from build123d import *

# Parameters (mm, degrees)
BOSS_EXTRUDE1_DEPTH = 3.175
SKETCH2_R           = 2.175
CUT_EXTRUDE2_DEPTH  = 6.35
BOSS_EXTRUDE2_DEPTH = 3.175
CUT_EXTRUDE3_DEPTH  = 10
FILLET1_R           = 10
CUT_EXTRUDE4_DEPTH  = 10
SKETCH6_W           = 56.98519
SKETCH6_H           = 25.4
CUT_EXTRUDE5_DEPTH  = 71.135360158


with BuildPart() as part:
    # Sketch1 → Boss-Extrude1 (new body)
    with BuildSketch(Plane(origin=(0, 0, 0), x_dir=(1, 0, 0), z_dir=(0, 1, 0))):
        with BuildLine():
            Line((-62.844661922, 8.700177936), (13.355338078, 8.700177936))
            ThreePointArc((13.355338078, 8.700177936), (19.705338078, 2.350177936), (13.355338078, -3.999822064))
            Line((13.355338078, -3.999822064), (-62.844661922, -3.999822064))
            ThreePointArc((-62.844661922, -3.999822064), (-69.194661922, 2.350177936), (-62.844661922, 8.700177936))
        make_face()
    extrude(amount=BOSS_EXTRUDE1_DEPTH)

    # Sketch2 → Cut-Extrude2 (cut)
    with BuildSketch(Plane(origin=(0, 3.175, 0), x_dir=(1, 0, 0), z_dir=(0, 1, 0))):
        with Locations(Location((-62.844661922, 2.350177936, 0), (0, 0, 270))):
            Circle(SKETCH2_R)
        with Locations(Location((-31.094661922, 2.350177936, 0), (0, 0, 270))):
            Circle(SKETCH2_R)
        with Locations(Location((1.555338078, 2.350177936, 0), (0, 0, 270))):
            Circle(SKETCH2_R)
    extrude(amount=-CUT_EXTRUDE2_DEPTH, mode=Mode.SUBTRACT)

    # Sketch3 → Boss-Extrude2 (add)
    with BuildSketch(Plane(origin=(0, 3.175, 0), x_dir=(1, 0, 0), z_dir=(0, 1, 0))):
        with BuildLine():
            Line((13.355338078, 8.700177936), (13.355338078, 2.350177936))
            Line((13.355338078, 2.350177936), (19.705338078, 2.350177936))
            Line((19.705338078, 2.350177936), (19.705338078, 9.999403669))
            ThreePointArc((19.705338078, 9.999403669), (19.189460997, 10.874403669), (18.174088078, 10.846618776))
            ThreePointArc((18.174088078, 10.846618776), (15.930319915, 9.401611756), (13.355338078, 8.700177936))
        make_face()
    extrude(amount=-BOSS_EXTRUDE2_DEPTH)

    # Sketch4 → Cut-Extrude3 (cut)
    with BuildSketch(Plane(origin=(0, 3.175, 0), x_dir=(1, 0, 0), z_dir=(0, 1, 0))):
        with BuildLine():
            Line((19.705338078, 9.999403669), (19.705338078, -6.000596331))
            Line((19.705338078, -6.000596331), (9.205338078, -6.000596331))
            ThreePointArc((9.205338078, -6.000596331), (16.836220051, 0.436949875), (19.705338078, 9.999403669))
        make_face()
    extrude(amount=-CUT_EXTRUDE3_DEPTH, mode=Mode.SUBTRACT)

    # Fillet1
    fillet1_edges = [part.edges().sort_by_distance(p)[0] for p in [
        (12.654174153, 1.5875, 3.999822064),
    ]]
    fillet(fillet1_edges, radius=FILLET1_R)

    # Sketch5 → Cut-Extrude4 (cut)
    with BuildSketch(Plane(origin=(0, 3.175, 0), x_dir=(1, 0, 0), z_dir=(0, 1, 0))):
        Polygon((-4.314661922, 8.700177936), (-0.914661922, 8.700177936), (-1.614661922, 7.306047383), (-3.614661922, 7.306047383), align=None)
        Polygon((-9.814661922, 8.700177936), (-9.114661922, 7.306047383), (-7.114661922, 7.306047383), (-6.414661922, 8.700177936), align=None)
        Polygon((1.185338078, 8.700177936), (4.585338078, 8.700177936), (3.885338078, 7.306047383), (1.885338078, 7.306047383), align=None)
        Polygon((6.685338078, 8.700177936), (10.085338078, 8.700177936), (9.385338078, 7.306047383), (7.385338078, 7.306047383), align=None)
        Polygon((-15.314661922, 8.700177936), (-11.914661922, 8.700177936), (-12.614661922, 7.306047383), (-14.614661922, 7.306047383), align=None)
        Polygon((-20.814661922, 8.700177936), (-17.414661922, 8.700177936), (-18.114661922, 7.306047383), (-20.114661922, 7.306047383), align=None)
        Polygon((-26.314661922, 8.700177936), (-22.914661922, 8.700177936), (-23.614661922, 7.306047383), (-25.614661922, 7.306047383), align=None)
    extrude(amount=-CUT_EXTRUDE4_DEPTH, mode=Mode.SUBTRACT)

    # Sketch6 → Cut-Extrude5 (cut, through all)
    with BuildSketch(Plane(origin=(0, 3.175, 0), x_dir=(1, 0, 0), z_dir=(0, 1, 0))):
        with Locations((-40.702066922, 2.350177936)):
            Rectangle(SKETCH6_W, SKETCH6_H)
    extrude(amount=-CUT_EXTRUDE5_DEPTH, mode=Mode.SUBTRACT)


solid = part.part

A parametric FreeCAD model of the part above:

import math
import FreeCAD as App
import Part
import Sketcher
from FreeCAD import Vector
Q = App.Units.Quantity


def edges_at(feature, points):
    """Names of the edges that pass closest to the given points."""
    edges = feature.Shape.Edges
    near = lambda p: min(range(len(edges)), key=lambda i: edges[i].distToShape(Part.Vertex(*p))[0])
    return sorted({f"Edge{near(p) + 1}" for p in points})

doc = App.newDocument("Part")
body = doc.addObject("PartDesign::Body", "Body")

sketch1 = body.newObject("Sketcher::SketchObject", "Sketch")
sketch1.AttachmentSupport = (doc.getObject("XZ_Plane"), [""])
sketch1.MapMode = "FlatFace"
sketch1.addGeometry([
    Part.LineSegment(Vector(13.355338, -8.700178, 0), Vector(-62.844662, -8.700178, 0)),
    Part.ArcOfCircle(Part.Circle(Vector(-62.844662, -2.350178, 0), Vector(0, 0, 1), 6.35), math.radians(90), math.radians(270)),
    Part.LineSegment(Vector(-62.844662, 3.999822, 0), Vector(13.355338, 3.999822, 0)),
    Part.ArcOfCircle(Part.Circle(Vector(13.355338, -2.350178, 0), Vector(0, 0, 1), 6.35), math.radians(-90), math.radians(90)),
], False)
sketch1.addConstraint([
    Sketcher.Constraint("Tangent", 0, 2, 1, 2),
    Sketcher.Constraint("Tangent", 1, 1, 2, 1),
    Sketcher.Constraint("Tangent", 2, 2, 3, 2),
    Sketcher.Constraint("Tangent", 3, 1, 0, 1),
    Sketcher.Constraint("Horizontal", 0),
    Sketcher.Constraint("Horizontal", 2),
    Sketcher.Constraint("Radius", 1, Q("6.35 mm")),
    Sketcher.Constraint("DistanceX", 0, 2, 0, 1, Q("76.2 mm")),
    Sketcher.Constraint("DistanceX", 1, 3, -1, 1, Q("62.844662 mm")),
    Sketcher.Constraint("DistanceY", 1, 3, -1, 1, Q("2.350178 mm")),
])
pad1 = body.newObject("PartDesign::Pad", "Pad")
pad1.Profile = sketch1
pad1.Length = 3.175
pad1.Reversed = True

sketch2 = body.newObject("Sketcher::SketchObject", "Sketch001")
sketch2.AttachmentSupport = (doc.getObject("XZ_Plane"), [""])
sketch2.MapMode = "FlatFace"
sketch2.AttachmentOffset = App.Placement(Vector(0, 0, -3.175), App.Rotation())
sketch2.addGeometry([
    Part.Circle(Vector(-62.844662, -2.350178, 0), Vector(0, 0, 1), 2.175),
    Part.Circle(Vector(-31.094662, -2.350178, 0), Vector(0, 0, 1), 2.175),
    Part.Circle(Vector(1.555338, -2.350178, 0), Vector(0, 0, 1), 2.175),
], False)
sketch2.addConstraint([
    Sketcher.Constraint("Equal", 0, 1),
    Sketcher.Constraint("Equal", 1, 2),
    Sketcher.Constraint("Horizontal", 0, 3, 1, 3),
    Sketcher.Constraint("Horizontal", 1, 3, 2, 3),
    Sketcher.Constraint("Diameter", 0, Q("4.35 mm")),
    Sketcher.Constraint("DistanceX", 0, 3, 2, 3, Q("64.4 mm")),
    Sketcher.Constraint("DistanceX", 0, 3, 1, 3, Q("31.75 mm")),
    Sketcher.Constraint("DistanceX", 0, 3, -1, 1, Q("62.844662 mm")),
    Sketcher.Constraint("DistanceY", 0, 3, -1, 1, Q("2.350178 mm")),
])
pocket1 = body.newObject("PartDesign::Pocket", "Pocket")
pocket1.Profile = sketch2
pocket1.Length = 6.35
pocket1.Reversed = True

sketch3 = body.newObject("Sketcher::SketchObject", "Sketch002")
sketch3.AttachmentSupport = (doc.getObject("XZ_Plane"), [""])
sketch3.MapMode = "FlatFace"
sketch3.AttachmentOffset = App.Placement(Vector(0, 0, -3.175), App.Rotation())
sketch3.addGeometry([
    Part.LineSegment(Vector(13.355338, -8.700178, 0), Vector(13.355338, -2.350178, 0)),
    Part.LineSegment(Vector(13.355338, -2.350178, 0), Vector(19.705338, -2.350178, 0)),
    Part.LineSegment(Vector(19.705338, -2.350178, 0), Vector(19.705338, -9.999404, 0)),
    Part.ArcOfCircle(Part.Circle(Vector(18.705338, -9.999404, 0), Vector(0, 0, 1), 1), math.radians(-122.089951), math.radians(0)),
    Part.ArcOfCircle(Part.Circle(Vector(12.369997, -17.394521, 0), Vector(0, 0, 1), 8.75), math.radians(48.44607), math.radians(83.534183)),
], False)
sketch3.addConstraint([
    Sketcher.Constraint("Coincident", 0, 2, 1, 1),
    Sketcher.Constraint("Coincident", 1, 2, 2, 1),
    Sketcher.Constraint("Tangent", 2, 2, 3, 2),
    Sketcher.Constraint("Coincident", 3, 1, 4, 1),
    Sketcher.Constraint("Coincident", 4, 2, 0, 1),
    Sketcher.Constraint("Vertical", 0),
    Sketcher.Constraint("Horizontal", 1),
    Sketcher.Constraint("Vertical", 2),
    Sketcher.Constraint("Equal", 1, 0),
    Sketcher.Constraint("Radius", 3, Q("1 mm")),
    Sketcher.Constraint("Radius", 4, Q("8.75 mm")),
    Sketcher.Constraint("DistanceX", 1, 1, 1, 2, Q("6.35 mm")),
    Sketcher.Constraint("DistanceY", 2, 2, 2, 1, Q("7.649226 mm")),
    Sketcher.Constraint("DistanceX", -1, 1, 3, 3, Q("18.705338 mm")),
    Sketcher.Constraint("DistanceY", 4, 3, -1, 1, Q("17.394521 mm")),
    Sketcher.Constraint("DistanceX", -1, 1, 3, 1, Q("18.174088 mm")),
])
pad2 = body.newObject("PartDesign::Pad", "Pad001")
pad2.Profile = sketch3
pad2.Length = 3.175

sketch4 = body.newObject("Sketcher::SketchObject", "Sketch003")
sketch4.AttachmentSupport = (doc.getObject("XZ_Plane"), [""])
sketch4.MapMode = "FlatFace"
sketch4.AttachmentOffset = App.Placement(Vector(0, 0, -3.175), App.Rotation())
sketch4.addGeometry([
    Part.LineSegment(Vector(19.705338, 6.000596, 0), Vector(19.705338, -9.999404, 0)),
    Part.ArcOfCircle(Part.Circle(Vector(2.205382, -10.038438, 0), Vector(0, 0, 1), 17.5), math.radians(0.127799), math.radians(66.421977)),
    Part.LineSegment(Vector(9.205338, 6.000596, 0), Vector(19.705338, 6.000596, 0)),
], False)
sketch4.addConstraint([
    Sketcher.Constraint("Coincident", 0, 2, 1, 1),
    Sketcher.Constraint("Coincident", 1, 2, 2, 1),
    Sketcher.Constraint("Coincident", 2, 2, 0, 1),
    Sketcher.Constraint("Vertical", 0),
    Sketcher.Constraint("Horizontal", 2),
    Sketcher.Constraint("Radius", 1, Q("17.5 mm")),
    Sketcher.Constraint("DistanceY", 0, 2, 0, 1, Q("16 mm")),
    Sketcher.Constraint("DistanceX", 2, 1, 2, 2, Q("10.5 mm")),
    Sketcher.Constraint("DistanceX", -1, 1, 1, 3, Q("2.205382 mm")),
    Sketcher.Constraint("DistanceY", 1, 3, -1, 1, Q("10.038438 mm")),
])
pocket2 = body.newObject("PartDesign::Pocket", "Pocket001")
pocket2.Profile = sketch4
pocket2.Length = 10
pocket2.Reversed = True
doc.recompute()

fillet = body.newObject("PartDesign::Fillet", "Fillet")
fillet.Base = (pocket2, edges_at(pocket2, [(12.654, 1.587, 4)]))
fillet.Radius = 10

sketch5 = body.newObject("Sketcher::SketchObject", "Sketch004")
sketch5.AttachmentSupport = (doc.getObject("XZ_Plane"), [""])
sketch5.MapMode = "FlatFace"
sketch5.AttachmentOffset = App.Placement(Vector(0, 0, -3.175), App.Rotation())
sketch5.addGeometry([
    Part.LineSegment(Vector(-0.914662, -8.700178, 0), Vector(-4.314662, -8.700178, 0)),
    Part.LineSegment(Vector(-4.314662, -8.700178, 0), Vector(-3.614662, -7.306047, 0)),
    Part.LineSegment(Vector(-3.614662, -7.306047, 0), Vector(-1.614662, -7.306047, 0)),
    Part.LineSegment(Vector(-1.614662, -7.306047, 0), Vector(-0.914662, -8.700178, 0)),
    Part.LineSegment(Vector(-9.814662, -8.700178, 0), Vector(-9.114662, -7.306047, 0)),
    Part.LineSegment(Vector(-9.114662, -7.306047, 0), Vector(-7.114662, -7.306047, 0)),
    Part.LineSegment(Vector(-7.114662, -7.306047, 0), Vector(-6.414662, -8.700178, 0)),
    Part.LineSegment(Vector(-6.414662, -8.700178, 0), Vector(-9.814662, -8.700178, 0)),
    Part.LineSegment(Vector(4.585338, -8.700178, 0), Vector(1.185338, -8.700178, 0)),
    Part.LineSegment(Vector(1.185338, -8.700178, 0), Vector(1.885338, -7.306047, 0)),
    Part.LineSegment(Vector(1.885338, -7.306047, 0), Vector(3.885338, -7.306047, 0)),
    Part.LineSegment(Vector(3.885338, -7.306047, 0), Vector(4.585338, -8.700178, 0)),
    Part.LineSegment(Vector(10.085338, -8.700178, 0), Vector(6.685338, -8.700178, 0)),
    Part.LineSegment(Vector(6.685338, -8.700178, 0), Vector(7.385338, -7.306047, 0)),
    Part.LineSegment(Vector(7.385338, -7.306047, 0), Vector(9.385338, -7.306047, 0)),
    Part.LineSegment(Vector(9.385338, -7.306047, 0), Vector(10.085338, -8.700178, 0)),
    Part.LineSegment(Vector(-11.914662, -8.700178, 0), Vector(-15.314662, -8.700178, 0)),
    Part.LineSegment(Vector(-15.314662, -8.700178, 0), Vector(-14.614662, -7.306047, 0)),
    Part.LineSegment(Vector(-14.614662, -7.306047, 0), Vector(-12.614662, -7.306047, 0)),
    Part.LineSegment(Vector(-12.614662, -7.306047, 0), Vector(-11.914662, -8.700178, 0)),
    Part.LineSegment(Vector(-17.414662, -8.700178, 0), Vector(-20.814662, -8.700178, 0)),
    Part.LineSegment(Vector(-20.814662, -8.700178, 0), Vector(-20.114662, -7.306047, 0)),
    Part.LineSegment(Vector(-20.114662, -7.306047, 0), Vector(-18.114662, -7.306047, 0)),
    Part.LineSegment(Vector(-18.114662, -7.306047, 0), Vector(-17.414662, -8.700178, 0)),
    Part.LineSegment(Vector(-22.914662, -8.700178, 0), Vector(-26.314662, -8.700178, 0)),
    Part.LineSegment(Vector(-26.314662, -8.700178, 0), Vector(-25.614662, -7.306047, 0)),
    Part.LineSegment(Vector(-25.614662, -7.306047, 0), Vector(-23.614662, -7.306047, 0)),
    Part.LineSegment(Vector(-23.614662, -7.306047, 0), Vector(-22.914662, -8.700178, 0)),
], False)
sketch5.addConstraint([
    Sketcher.Constraint("Coincident", 0, 2, 1, 1),
    Sketcher.Constraint("Coincident", 1, 2, 2, 1),
    Sketcher.Constraint("Coincident", 2, 2, 3, 1),
    Sketcher.Constraint("Coincident", 3, 2, 0, 1),
    Sketcher.Constraint("Coincident", 4, 2, 5, 1),
    Sketcher.Constraint("Coincident", 5, 2, 6, 1),
    Sketcher.Constraint("Coincident", 6, 2, 7, 1),
    Sketcher.Constraint("Coincident", 7, 2, 4, 1),
    Sketcher.Constraint("Coincident", 8, 2, 9, 1),
    Sketcher.Constraint("Coincident", 9, 2, 10, 1),
    Sketcher.Constraint("Coincident", 10, 2, 11, 1),
    Sketcher.Constraint("Coincident", 11, 2, 8, 1),
    Sketcher.Constraint("Coincident", 12, 2, 13, 1),
    Sketcher.Constraint("Coincident", 13, 2, 14, 1),
    Sketcher.Constraint("Coincident", 14, 2, 15, 1),
    Sketcher.Constraint("Coincident", 15, 2, 12, 1),
    Sketcher.Constraint("Coincident", 16, 2, 17, 1),
    Sketcher.Constraint("Coincident", 17, 2, 18, 1),
    Sketcher.Constraint("Coincident", 18, 2, 19, 1),
    Sketcher.Constraint("Coincident", 19, 2, 16, 1),
    Sketcher.Constraint("Coincident", 20, 2, 21, 1),
    Sketcher.Constraint("Coincident", 21, 2, 22, 1),
    Sketcher.Constraint("Coincident", 22, 2, 23, 1),
    Sketcher.Constraint("Coincident", 23, 2, 20, 1),
    Sketcher.Constraint("Coincident", 24, 2, 25, 1),
    Sketcher.Constraint("Coincident", 25, 2, 26, 1),
    Sketcher.Constraint("Coincident", 26, 2, 27, 1),
    Sketcher.Constraint("Coincident", 27, 2, 24, 1),
    Sketcher.Constraint("Horizontal", 0),
    Sketcher.Constraint("Horizontal", 2),
    Sketcher.Constraint("Horizontal", 5),
    Sketcher.Constraint("Horizontal", 7),
    Sketcher.Constraint("Horizontal", 8),
    Sketcher.Constraint("Horizontal", 10),
    Sketcher.Constraint("Horizontal", 12),
    Sketcher.Constraint("Horizontal", 14),
    Sketcher.Constraint("Horizontal", 16),
    Sketcher.Constraint("Horizontal", 18),
    Sketcher.Constraint("Horizontal", 20),
    Sketcher.Constraint("Horizontal", 22),
    Sketcher.Constraint("Horizontal", 24),
    Sketcher.Constraint("Horizontal", 26),
    Sketcher.Constraint("Parallel", 1, 4),
    Sketcher.Constraint("Parallel", 3, 6),
    Sketcher.Constraint("Parallel", 4, 9),
    Sketcher.Constraint("Parallel", 6, 11),
    Sketcher.Constraint("Parallel", 9, 13),
    Sketcher.Constraint("Parallel", 11, 15),
    Sketcher.Constraint("Parallel", 13, 17),
    Sketcher.Constraint("Parallel", 15, 19),
    Sketcher.Constraint("Parallel", 17, 21),
    Sketcher.Constraint("Parallel", 19, 23),
    Sketcher.Constraint("Parallel", 21, 25),
    Sketcher.Constraint("Parallel", 23, 27),
    Sketcher.Constraint("Horizontal", 2, 2, 4, 2),
    Sketcher.Constraint("Horizontal", 3, 2, 6, 2),
    Sketcher.Constraint("Horizontal", 7, 2, 8, 2),
    Sketcher.Constraint("Horizontal", 5, 2, 9, 2),
    Sketcher.Constraint("Horizontal", 11, 2, 12, 2),
    Sketcher.Constraint("Horizontal", 10, 2, 13, 2),
    Sketcher.Constraint("Horizontal", 15, 2, 16, 2),
    Sketcher.Constraint("Horizontal", 14, 2, 17, 2),
    Sketcher.Constraint("Horizontal", 19, 2, 20, 2),
    Sketcher.Constraint("Horizontal", 18, 2, 21, 2),
    Sketcher.Constraint("Horizontal", 23, 2, 24, 2),
    Sketcher.Constraint("Horizontal", 22, 2, 25, 2),
    Sketcher.Constraint("Equal", 2, 5),
    Sketcher.Constraint("Equal", 7, 8),
    Sketcher.Constraint("Equal", 8, 12),
    Sketcher.Constraint("Equal", 12, 16),
    Sketcher.Constraint("Equal", 16, 20),
    Sketcher.Constraint("Equal", 20, 24),
    Sketcher.Constraint("Equal", 1, 3),
    Sketcher.Constraint("DistanceX", 2, 1, 2, 2, Q("2 mm")),
    Sketcher.Constraint("DistanceX", 0, 2, 0, 1, Q("3.4 mm")),
    Sketcher.Constraint("DistanceX", 16, 2, 0, 2, Q("11 mm")),
    Sketcher.Constraint("DistanceX", 20, 2, 7, 2, Q("11 mm")),
    Sketcher.Constraint("DistanceX", 24, 2, 16, 2, Q("11 mm")),
    Sketcher.Constraint("DistanceX", 4, 2, 0, 2, Q("4.8 mm")),
    Sketcher.Constraint("DistanceX", 3, 2, 8, 2, Q("2.1 mm")),
    Sketcher.Constraint("DistanceX", 11, 2, 12, 2, Q("2.1 mm")),
    Sketcher.Constraint("Distance", 1, Q("1.56 mm")),
    Sketcher.Constraint("DistanceX", 0, 2, -1, 1, Q("4.314662 mm")),
    Sketcher.Constraint("DistanceY", 0, 2, -1, 1, Q("8.700178 mm")),
])
pocket3 = body.newObject("PartDesign::Pocket", "Pocket002")
pocket3.Profile = sketch5
pocket3.Length = 10
pocket3.Reversed = True

sketch6 = body.newObject("Sketcher::SketchObject", "Sketch005")
sketch6.AttachmentSupport = (doc.getObject("XZ_Plane"), [""])
sketch6.MapMode = "FlatFace"
sketch6.AttachmentOffset = App.Placement(Vector(0, 0, -3.175), App.Rotation())
sketch6.addGeometry([
    Part.LineSegment(Vector(-69.194662, -15.050178, 0), Vector(-69.194662, 10.349822, 0)),
    Part.LineSegment(Vector(-69.194662, 10.349822, 0), Vector(-12.209472, 10.349822, 0)),
    Part.LineSegment(Vector(-12.209472, 10.349822, 0), Vector(-12.209472, -15.050178, 0)),
    Part.LineSegment(Vector(-12.209472, -15.050178, 0), Vector(-69.194662, -15.050178, 0)),
], False)
sketch6.addConstraint([
    Sketcher.Constraint("Coincident", 0, 2, 1, 1),
    Sketcher.Constraint("Coincident", 1, 2, 2, 1),
    Sketcher.Constraint("Coincident", 2, 2, 3, 1),
    Sketcher.Constraint("Coincident", 3, 2, 0, 1),
    Sketcher.Constraint("Vertical", 0),
    Sketcher.Constraint("Horizontal", 1),
    Sketcher.Constraint("Vertical", 2),
    Sketcher.Constraint("Horizontal", 3),
    Sketcher.Constraint("DistanceY", 0, 1, 0, 2, Q("25.4 mm")),
    Sketcher.Constraint("DistanceX", 1, 1, 1, 2, Q("56.98519 mm")),
    Sketcher.Constraint("DistanceX", 0, 2, -1, 1, Q("69.194662 mm")),
    Sketcher.Constraint("DistanceY", -1, 1, 0, 2, Q("10.349822 mm")),
])
pocket4 = body.newObject("PartDesign::Pocket", "Pocket003")
pocket4.Profile = sketch6
pocket4.Type = "ThroughAll"
pocket4.Reversed = True

doc.recompute()
